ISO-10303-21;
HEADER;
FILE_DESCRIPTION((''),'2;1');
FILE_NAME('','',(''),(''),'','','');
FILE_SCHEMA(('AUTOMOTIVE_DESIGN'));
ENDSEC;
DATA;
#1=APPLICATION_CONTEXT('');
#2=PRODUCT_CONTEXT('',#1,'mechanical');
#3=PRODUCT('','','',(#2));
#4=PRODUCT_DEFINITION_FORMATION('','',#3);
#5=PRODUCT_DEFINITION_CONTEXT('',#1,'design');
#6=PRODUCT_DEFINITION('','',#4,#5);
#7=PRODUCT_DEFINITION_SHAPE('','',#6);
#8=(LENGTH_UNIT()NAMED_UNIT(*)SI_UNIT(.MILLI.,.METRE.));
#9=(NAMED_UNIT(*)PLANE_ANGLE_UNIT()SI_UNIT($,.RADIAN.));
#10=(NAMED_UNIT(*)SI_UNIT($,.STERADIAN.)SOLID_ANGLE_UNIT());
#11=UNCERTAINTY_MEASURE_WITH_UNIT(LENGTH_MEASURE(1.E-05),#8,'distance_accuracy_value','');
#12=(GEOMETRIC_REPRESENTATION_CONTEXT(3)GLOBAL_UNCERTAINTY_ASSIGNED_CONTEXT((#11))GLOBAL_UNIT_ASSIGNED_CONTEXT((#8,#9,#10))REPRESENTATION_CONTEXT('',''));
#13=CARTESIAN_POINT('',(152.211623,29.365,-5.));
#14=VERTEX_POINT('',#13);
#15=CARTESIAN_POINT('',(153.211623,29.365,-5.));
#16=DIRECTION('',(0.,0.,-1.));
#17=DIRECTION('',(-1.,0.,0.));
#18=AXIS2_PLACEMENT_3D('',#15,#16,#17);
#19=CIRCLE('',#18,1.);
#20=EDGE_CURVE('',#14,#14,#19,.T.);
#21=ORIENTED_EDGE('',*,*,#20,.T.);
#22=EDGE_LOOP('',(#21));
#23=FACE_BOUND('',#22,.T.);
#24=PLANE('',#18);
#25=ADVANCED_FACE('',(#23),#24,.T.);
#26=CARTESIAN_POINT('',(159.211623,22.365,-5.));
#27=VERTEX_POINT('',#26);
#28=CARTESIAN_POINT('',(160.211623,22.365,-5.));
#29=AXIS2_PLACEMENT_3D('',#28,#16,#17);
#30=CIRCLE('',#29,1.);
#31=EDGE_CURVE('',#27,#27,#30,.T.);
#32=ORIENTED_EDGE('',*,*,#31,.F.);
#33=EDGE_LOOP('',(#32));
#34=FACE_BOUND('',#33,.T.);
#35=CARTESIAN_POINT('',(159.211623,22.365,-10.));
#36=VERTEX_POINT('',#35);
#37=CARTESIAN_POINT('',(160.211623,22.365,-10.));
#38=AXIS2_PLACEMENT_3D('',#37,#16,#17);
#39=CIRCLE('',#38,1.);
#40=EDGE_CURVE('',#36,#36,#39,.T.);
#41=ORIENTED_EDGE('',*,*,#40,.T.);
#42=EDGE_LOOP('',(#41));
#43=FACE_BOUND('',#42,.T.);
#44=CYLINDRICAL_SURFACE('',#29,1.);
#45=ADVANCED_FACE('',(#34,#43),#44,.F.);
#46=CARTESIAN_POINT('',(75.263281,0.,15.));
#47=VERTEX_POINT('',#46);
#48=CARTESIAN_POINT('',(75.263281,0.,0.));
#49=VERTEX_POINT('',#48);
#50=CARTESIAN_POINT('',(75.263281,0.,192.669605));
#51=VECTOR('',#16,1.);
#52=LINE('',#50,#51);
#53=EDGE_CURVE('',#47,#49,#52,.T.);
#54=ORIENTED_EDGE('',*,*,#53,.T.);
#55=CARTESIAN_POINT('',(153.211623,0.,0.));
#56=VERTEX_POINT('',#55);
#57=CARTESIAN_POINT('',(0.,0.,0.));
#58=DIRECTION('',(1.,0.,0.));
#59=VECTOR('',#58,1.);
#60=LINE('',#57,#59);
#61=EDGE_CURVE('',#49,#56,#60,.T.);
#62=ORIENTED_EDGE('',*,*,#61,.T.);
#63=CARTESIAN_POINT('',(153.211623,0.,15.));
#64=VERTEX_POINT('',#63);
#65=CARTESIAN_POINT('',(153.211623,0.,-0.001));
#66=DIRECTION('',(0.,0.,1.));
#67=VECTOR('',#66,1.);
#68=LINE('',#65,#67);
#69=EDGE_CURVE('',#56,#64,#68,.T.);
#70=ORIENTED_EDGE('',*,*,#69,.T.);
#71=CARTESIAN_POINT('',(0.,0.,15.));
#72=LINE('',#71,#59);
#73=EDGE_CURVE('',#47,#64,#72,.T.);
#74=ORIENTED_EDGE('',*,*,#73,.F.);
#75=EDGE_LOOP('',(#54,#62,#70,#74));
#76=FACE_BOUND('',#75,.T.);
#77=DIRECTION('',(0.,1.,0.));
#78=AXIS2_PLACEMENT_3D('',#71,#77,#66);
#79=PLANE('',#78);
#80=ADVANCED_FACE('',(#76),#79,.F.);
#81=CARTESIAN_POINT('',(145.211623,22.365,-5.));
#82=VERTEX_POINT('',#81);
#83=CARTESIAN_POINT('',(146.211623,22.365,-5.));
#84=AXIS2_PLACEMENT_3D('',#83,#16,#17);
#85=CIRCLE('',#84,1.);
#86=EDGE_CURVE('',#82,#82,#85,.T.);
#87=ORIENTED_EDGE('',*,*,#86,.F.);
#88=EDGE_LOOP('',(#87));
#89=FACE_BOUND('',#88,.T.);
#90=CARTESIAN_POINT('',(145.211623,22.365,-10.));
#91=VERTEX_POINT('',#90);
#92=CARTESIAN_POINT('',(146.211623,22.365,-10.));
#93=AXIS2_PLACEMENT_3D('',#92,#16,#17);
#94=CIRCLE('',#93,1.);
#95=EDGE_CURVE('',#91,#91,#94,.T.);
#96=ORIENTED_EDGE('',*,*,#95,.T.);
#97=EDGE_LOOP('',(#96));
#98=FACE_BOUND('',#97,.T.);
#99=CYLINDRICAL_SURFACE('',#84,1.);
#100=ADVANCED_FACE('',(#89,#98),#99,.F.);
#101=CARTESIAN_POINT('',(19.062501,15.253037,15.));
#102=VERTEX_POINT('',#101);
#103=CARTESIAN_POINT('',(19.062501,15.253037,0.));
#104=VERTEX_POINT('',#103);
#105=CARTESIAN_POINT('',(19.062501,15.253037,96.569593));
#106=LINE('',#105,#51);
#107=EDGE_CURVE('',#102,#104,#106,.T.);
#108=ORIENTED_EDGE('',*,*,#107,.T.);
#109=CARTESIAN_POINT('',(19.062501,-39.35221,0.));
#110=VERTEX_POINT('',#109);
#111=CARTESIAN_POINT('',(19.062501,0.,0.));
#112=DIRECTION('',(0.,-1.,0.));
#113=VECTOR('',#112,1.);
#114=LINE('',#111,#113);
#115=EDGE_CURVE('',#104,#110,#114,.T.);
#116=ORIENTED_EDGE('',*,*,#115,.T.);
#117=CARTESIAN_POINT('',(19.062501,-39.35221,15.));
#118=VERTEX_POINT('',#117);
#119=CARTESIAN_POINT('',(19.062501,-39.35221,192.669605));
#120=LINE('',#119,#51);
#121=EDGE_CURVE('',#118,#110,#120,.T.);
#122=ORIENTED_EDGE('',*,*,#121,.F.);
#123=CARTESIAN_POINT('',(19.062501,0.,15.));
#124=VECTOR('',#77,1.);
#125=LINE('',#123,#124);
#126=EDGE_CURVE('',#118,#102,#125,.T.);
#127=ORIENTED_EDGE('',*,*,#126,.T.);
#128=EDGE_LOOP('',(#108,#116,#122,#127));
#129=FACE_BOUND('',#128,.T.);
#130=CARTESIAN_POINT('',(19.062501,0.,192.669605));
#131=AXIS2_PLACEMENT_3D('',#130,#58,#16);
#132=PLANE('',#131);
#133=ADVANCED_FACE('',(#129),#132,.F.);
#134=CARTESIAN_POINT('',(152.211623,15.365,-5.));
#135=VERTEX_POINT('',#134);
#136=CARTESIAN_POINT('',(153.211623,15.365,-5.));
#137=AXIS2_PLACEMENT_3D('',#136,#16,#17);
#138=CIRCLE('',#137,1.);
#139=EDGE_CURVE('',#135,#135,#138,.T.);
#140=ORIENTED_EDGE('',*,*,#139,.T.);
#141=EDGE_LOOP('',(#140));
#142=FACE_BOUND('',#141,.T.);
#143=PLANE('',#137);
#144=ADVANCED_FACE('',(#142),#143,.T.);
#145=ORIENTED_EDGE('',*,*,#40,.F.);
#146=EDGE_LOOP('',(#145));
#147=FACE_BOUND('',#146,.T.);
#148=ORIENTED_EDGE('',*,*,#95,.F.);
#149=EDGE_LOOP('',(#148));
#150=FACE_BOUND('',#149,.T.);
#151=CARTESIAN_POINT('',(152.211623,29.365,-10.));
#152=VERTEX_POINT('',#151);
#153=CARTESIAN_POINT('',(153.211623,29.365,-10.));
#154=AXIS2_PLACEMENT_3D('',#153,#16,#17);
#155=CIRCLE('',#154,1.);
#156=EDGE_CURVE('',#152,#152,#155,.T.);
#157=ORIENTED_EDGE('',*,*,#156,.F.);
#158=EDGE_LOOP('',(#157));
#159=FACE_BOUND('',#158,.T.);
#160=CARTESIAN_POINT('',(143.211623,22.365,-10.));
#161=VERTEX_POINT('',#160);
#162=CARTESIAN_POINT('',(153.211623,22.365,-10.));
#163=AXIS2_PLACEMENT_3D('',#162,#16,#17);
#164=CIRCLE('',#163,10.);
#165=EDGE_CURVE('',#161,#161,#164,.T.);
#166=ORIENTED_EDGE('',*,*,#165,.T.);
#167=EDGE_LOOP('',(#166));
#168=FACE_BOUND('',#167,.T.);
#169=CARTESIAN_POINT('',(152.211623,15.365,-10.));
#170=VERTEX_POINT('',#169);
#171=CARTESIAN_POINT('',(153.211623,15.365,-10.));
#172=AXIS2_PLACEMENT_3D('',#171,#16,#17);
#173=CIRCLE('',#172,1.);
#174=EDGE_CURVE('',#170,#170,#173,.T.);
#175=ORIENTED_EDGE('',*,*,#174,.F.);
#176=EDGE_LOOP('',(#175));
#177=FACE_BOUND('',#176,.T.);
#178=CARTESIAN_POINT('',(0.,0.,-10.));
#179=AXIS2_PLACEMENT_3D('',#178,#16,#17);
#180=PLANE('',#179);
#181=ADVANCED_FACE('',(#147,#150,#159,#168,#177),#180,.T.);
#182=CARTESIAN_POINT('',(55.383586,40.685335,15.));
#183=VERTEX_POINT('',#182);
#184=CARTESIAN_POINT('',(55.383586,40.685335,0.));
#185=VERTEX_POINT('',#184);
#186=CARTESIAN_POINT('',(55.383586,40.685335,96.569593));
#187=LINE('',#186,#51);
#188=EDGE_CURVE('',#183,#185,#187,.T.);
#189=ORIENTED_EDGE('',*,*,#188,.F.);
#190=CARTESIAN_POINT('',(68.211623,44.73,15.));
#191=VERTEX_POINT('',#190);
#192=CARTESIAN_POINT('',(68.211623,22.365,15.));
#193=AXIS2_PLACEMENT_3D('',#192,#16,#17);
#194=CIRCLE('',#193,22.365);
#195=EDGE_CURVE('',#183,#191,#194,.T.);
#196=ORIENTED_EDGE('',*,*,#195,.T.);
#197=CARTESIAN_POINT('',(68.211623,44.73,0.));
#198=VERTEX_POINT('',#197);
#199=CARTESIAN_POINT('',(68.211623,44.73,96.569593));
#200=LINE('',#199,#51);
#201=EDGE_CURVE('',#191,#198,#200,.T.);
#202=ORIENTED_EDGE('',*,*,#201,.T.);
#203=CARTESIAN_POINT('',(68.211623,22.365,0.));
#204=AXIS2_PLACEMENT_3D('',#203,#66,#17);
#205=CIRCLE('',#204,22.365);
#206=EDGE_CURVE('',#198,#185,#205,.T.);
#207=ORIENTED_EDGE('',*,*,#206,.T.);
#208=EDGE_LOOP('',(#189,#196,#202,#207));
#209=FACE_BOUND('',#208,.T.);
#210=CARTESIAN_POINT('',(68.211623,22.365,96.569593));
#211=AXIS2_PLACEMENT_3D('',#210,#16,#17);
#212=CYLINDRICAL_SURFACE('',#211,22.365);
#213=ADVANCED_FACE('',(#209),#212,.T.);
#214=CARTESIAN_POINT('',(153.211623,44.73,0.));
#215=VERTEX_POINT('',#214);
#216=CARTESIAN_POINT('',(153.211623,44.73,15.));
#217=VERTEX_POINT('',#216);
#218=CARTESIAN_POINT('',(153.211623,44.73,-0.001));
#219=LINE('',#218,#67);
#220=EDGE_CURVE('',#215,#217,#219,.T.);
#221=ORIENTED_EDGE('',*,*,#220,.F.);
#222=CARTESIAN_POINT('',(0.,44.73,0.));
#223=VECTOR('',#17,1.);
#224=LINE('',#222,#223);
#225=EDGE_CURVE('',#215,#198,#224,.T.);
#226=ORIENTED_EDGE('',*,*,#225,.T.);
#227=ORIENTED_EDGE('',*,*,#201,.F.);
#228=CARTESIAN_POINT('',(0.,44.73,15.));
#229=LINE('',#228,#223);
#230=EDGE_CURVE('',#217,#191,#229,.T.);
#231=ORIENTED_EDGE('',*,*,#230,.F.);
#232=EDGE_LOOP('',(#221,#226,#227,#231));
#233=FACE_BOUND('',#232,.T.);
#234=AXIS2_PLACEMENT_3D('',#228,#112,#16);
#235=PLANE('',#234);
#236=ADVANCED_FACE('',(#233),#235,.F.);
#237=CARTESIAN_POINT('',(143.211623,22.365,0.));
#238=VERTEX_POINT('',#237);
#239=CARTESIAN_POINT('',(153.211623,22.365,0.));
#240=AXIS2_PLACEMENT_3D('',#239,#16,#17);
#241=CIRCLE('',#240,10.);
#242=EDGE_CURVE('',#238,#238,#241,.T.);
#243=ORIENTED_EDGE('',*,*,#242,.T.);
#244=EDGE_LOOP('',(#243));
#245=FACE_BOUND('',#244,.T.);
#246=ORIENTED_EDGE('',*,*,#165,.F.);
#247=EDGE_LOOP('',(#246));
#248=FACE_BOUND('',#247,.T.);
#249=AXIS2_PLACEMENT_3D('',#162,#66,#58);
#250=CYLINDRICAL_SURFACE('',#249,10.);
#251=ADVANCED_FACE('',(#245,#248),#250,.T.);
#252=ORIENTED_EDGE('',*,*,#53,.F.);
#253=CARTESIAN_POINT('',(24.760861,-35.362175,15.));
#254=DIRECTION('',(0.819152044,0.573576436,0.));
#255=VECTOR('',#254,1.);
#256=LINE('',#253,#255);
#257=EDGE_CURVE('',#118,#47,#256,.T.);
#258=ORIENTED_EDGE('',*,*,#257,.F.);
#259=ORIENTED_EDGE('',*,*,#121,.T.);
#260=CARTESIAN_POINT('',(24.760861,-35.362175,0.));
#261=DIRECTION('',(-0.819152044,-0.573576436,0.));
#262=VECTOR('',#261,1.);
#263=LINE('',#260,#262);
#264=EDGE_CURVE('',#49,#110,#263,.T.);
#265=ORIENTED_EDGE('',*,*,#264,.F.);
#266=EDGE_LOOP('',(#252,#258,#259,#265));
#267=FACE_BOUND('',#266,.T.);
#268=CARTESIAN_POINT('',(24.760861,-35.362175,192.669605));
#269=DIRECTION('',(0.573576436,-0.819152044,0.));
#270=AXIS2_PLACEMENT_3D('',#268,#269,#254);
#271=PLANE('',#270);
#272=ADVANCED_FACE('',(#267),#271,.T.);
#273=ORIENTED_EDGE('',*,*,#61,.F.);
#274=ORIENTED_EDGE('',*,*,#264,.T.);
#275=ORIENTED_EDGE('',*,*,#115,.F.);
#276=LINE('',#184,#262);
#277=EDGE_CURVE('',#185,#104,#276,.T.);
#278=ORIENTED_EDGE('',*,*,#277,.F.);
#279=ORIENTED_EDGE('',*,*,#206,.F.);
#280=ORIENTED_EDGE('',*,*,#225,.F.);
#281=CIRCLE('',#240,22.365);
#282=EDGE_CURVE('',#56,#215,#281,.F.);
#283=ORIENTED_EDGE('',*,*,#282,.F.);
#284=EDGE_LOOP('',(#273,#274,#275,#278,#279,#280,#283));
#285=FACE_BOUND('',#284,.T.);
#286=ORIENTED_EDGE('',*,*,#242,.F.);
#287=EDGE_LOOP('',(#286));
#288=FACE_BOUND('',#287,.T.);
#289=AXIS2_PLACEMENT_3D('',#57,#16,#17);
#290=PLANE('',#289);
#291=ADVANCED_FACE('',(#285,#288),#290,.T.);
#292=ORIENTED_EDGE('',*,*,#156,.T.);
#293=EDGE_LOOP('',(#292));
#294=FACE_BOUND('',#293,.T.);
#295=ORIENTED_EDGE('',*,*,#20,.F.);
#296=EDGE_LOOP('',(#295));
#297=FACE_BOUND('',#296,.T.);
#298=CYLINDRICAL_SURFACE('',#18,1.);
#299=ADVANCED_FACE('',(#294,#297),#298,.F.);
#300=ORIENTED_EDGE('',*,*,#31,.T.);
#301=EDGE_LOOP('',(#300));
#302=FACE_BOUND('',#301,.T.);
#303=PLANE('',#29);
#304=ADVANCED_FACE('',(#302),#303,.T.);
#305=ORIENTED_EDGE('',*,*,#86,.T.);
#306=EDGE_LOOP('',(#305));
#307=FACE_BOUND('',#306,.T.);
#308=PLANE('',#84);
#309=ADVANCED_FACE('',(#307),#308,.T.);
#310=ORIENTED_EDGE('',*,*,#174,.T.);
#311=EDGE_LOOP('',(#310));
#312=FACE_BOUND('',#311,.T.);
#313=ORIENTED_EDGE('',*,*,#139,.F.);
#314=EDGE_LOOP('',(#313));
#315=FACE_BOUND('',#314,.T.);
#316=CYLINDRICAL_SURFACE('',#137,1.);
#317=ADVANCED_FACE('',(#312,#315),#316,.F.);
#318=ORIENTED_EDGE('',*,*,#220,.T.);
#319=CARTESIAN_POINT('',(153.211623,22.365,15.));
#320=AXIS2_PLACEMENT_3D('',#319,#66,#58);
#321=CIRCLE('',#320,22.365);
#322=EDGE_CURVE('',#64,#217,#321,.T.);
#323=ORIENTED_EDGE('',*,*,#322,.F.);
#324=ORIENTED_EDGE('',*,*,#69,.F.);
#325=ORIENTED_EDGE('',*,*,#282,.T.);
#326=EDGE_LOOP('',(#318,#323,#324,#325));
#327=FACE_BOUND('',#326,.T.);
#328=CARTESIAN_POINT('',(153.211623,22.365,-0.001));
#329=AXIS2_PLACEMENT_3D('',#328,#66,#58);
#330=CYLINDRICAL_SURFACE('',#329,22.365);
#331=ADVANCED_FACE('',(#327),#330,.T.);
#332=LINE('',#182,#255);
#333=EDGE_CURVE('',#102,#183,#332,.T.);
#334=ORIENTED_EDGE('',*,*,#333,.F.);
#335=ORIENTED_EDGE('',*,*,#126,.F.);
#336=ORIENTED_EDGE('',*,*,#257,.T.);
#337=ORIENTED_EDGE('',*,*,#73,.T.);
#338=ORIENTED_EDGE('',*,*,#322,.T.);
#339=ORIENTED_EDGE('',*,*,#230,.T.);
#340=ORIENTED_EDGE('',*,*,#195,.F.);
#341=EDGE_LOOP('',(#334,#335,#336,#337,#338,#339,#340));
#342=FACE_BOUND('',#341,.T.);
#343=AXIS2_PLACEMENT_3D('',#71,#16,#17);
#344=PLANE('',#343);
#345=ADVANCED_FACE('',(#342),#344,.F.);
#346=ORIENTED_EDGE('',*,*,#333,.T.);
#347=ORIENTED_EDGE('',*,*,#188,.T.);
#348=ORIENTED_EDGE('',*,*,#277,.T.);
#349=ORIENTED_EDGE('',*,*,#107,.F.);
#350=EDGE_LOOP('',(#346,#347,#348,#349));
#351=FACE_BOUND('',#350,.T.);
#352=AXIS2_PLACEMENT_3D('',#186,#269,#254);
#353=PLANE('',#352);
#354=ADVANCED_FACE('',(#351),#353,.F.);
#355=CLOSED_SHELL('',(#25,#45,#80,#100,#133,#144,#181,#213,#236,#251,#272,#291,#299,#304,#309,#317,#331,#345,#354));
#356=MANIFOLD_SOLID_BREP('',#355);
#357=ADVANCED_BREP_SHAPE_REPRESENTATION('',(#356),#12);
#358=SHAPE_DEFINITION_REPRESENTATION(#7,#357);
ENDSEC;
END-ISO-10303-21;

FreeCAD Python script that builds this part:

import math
import FreeCAD as App
import Part
import Sketcher
Q = App.Units.Quantity


def add_polygon(sketch, points):
    """Adds a closed chain of lines whose ends are joined by coincident constraints."""
    first, n = sketch.GeometryCount, len(points)
    for a, b in zip(points, points[1:] + points[:1]):
        sketch.addGeometry(Part.LineSegment(App.Vector(*a, 0), App.Vector(*b, 0)), False)
    for i in range(n):
        sketch.addConstraint(Sketcher.Constraint("Coincident", first + i, 2, first + (i + 1) % n, 1))

doc = App.newDocument("Part")
body = doc.addObject("PartDesign::Body", "Body")

sketch1 = body.newObject("Sketcher::SketchObject", "Sketch")
sketch1.AttachmentSupport = (doc.getObject("XY_Plane"), [""])
sketch1.MapMode = "FlatFace"
add_polygon(sketch1, [(0, 45), (0, 0), (300, 0), (300, 45)])
sketch1.addConstraint([
    Sketcher.Constraint("Vertical", 0),
    Sketcher.Constraint("Horizontal", 1),
    Sketcher.Constraint("Vertical", 2),
    Sketcher.Constraint("Horizontal", 3),
    Sketcher.Constraint("Coincident", 0, 2, -1, 1),
    Sketcher.Constraint("DistanceX", 1, 1, 1, 2, Q("300 mm")),
    Sketcher.Constraint("DistanceY", 0, 2, 0, 1, Q("44.73 mm")),
])
pad1 = body.newObject("PartDesign::Pad", "Pad")
pad1.Profile = sketch1
pad1.Length = 15

sketch2 = body.newObject("Sketcher::SketchObject", "Sketch001")
sketch2.AttachmentSupport = (doc.getObject("XY_Plane"), [""])
sketch2.MapMode = "FlatFace"
sketch2.AttachmentOffset = App.Placement(App.Vector(0, 0, 15), App.Rotation())
sketch2.addGeometry([
    Part.LineSegment(App.Vector(300, 45, 0), App.Vector(153, 45, 0)),
    Part.ArcOfCircle(Part.Circle(App.Vector(153, 22, 0), App.Vector(0, 0, 1), 22), math.radians(-90), math.radians(90)),
    Part.LineSegment(App.Vector(153, 0, 0), App.Vector(300, 0, 0)),
    Part.LineSegment(App.Vector(300, 0, 0), App.Vector(300, 45, 0)),
], False)
sketch2.addConstraint([
    Sketcher.Constraint("Tangent", 0, 2, 1, 2),
    Sketcher.Constraint("Tangent", 1, 1, 2, 1),
    Sketcher.Constraint("Coincident", 2, 2, 3, 1),
    Sketcher.Constraint("Coincident", 3, 2, 0, 1),
    Sketcher.Constraint("Horizontal", 0),
    Sketcher.Constraint("Horizontal", 2),
    Sketcher.Constraint("Vertical", 3),
    Sketcher.Constraint("PointOnObject", 1, 1, -1),
    Sketcher.Constraint("DistanceX", -1, 1, 2, 2, Q("300 mm")),
    Sketcher.Constraint("Radius", 1, Q("22.365 mm")),
    Sketcher.Constraint("DistanceX", 0, 2, 0, 1, Q("146.788377 mm")),
])
pocket1 = body.newObject("PartDesign::Pocket", "Pocket")
pocket1.Profile = sketch2
pocket1.Type = "UpToFirst"

sketch3 = body.newObject("Sketcher::SketchObject", "Sketch002")
sketch3.AttachmentSupport = (doc.getObject("XY_Plane"), [""])
sketch3.MapMode = "FlatFace"
sketch3.addGeometry(Part.Circle(App.Vector(153, 22, 0), App.Vector(0, 0, 1), 10), False)
sketch3.addConstraint([
    Sketcher.Constraint("Diameter", 0, Q("20 mm")),
    Sketcher.Constraint("DistanceY", -1, 1, 0, 3, Q("22.365 mm")),
    Sketcher.Constraint("DistanceX", -1, 1, 0, 3, Q("153.211623 mm")),
])
pad2 = body.newObject("PartDesign::Pad", "Pad001")
pad2.Profile = sketch3
pad2.Length = 10
pad2.Reversed = True

sketch4 = body.newObject("Sketcher::SketchObject", "Sketch003")
sketch4.AttachmentSupport = (doc.getObject("XY_Plane"), [""])
sketch4.MapMode = "FlatFace"
sketch4.AttachmentOffset = App.Placement(App.Vector(0, 0, -10), App.Rotation())
sketch4.addGeometry([
    Part.Circle(App.Vector(153.2, 29.4, 0), App.Vector(0, 0, 1), 1),
    Part.Circle(App.Vector(146.2, 22.4, 0), App.Vector(0, 0, 1), 1),
    Part.Circle(App.Vector(153.2, 15.4, 0), App.Vector(0, 0, 1), 1),
    Part.Circle(App.Vector(160.2, 22.4, 0), App.Vector(0, 0, 1), 1),
], False)
sketch4.addConstraint([
    Sketcher.Constraint("Equal", 0, 1),
    Sketcher.Constraint("Equal", 1, 2),
    Sketcher.Constraint("Equal", 2, 3),
    Sketcher.Constraint("Horizontal", 1, 3, 3, 3),
    Sketcher.Constraint("Vertical", 0, 3, 2, 3),
    Sketcher.Constraint("Diameter", 0, Q("2 mm")),
    Sketcher.Constraint("DistanceX", 1, 3, 0, 3, Q("7 mm")),
    Sketcher.Constraint("DistanceY", 1, 3, 0, 3, Q("7 mm")),
    Sketcher.Constraint("DistanceY", 2, 3, 1, 3, Q("7 mm")),
    Sketcher.Constraint("DistanceX", 2, 3, 3, 3, Q("7 mm")),
    Sketcher.Constraint("DistanceY", -1, 1, 0, 3, Q("29.365 mm")),
    Sketcher.Constraint("DistanceX", -1, 1, 0, 3, Q("153.211623 mm")),
])
pocket2 = body.newObject("PartDesign::Pocket", "Pocket001")
pocket2.Profile = sketch4
pocket2.Length = 5
pocket2.Reversed = True

sketch5 = body.newObject("Sketcher::SketchObject", "Sketch004")
sketch5.AttachmentSupport = (doc.getObject("XY_Plane"), [""])
sketch5.MapMode = "FlatFace"
sketch5.AttachmentOffset = App.Placement(App.Vector(0, 0, 15), App.Rotation())
sketch5.addGeometry([
    Part.LineSegment(App.Vector(55, 41, 0), App.Vector(19, 15, 0)),
    Part.LineSegment(App.Vector(19, 15, 0), App.Vector(19, -39, 0)),
    Part.LineSegment(App.Vector(19, -39, 0), App.Vector(75, 0, 0)),
    Part.LineSegment(App.Vector(75, 0, 0), App.Vector(153, 0, 0)),
    Part.ArcOfCircle(Part.Circle(App.Vector(153, 22, 0), App.Vector(0, 0, 1), 22), math.radians(-90), math.radians(0)),
    Part.ArcOfCircle(Part.Circle(App.Vector(153, 22, 0), App.Vector(0, 0, 1), 22), math.radians(0), math.radians(90)),
    Part.LineSegment(App.Vector(153, 45, 0), App.Vector(68, 45, 0)),
    Part.ArcOfCircle(Part.Circle(App.Vector(68, 22, 0), App.Vector(0, 0, 1), 22), math.radians(90), math.radians(125)),
    Part.Circle(App.Vector(153, 22, 0), App.Vector(0, 0, 1), 10),
], False)
sketch5.addConstraint([
    Sketcher.Constraint("Coincident", 0, 2, 1, 1),
    Sketcher.Constraint("Coincident", 1, 2, 2, 1),
    Sketcher.Constraint("Coincident", 2, 2, 3, 1),
    Sketcher.Constraint("Tangent", 3, 2, 4, 1),
    Sketcher.Constraint("Tangent", 4, 2, 5, 1),
    Sketcher.Constraint("Tangent", 5, 2, 6, 1),
    Sketcher.Constraint("Tangent", 6, 2, 7, 1),
    Sketcher.Constraint("Tangent", 7, 2, 0, 1),
    Sketcher.Constraint("Vertical", 1),
    Sketcher.Constraint("Horizontal", 3),
    Sketcher.Constraint("Horizontal", 6),
    Sketcher.Constraint("Coincident", 8, 3, 4, 3),
    Sketcher.Constraint("Equal", 4, 5),
    Sketcher.Constraint("Equal", 5, 7),
    Sketcher.Constraint("PointOnObject", 2, 2, -1),
    Sketcher.Constraint("Parallel", 0, 2),
    Sketcher.Constraint("Horizontal", 8, 3, 4, 2),
    Sketcher.Constraint("Diameter", 8, Q("20 mm")),
    Sketcher.Constraint("DistanceX", 6, 2, 6, 1, Q("85 mm")),
    Sketcher.Constraint("Angle", 0, Q("-145 deg")),
    Sketcher.Constraint("Radius", 4, Q("22.365 mm")),
    Sketcher.Constraint("DistanceX", -1, 1, 0, 2, Q("19.062501 mm")),
    Sketcher.Constraint("Distance", 0, Q("44.339858 mm")),
    Sketcher.Constraint("DistanceX", 3, 1, 3, 2, Q("77.948343 mm")),
])
pad3 = body.newObject("PartDesign::Pad", "Pad002")
pad3.Profile = sketch5
pad3.Length = 15
pad3.Reversed = True

sketch6 = body.newObject("Sketcher::SketchObject", "Sketch005")
sketch6.AttachmentSupport = (doc.getObject("XY_Plane"), [""])
sketch6.MapMode = "FlatFace"
sketch6.addGeometry([
    Part.LineSegment(App.Vector(19, 15, 0), App.Vector(19, 0, 0)),
    Part.LineSegment(App.Vector(19, 0, 0), App.Vector(0, 0, 0)),
    Part.LineSegment(App.Vector(0, 0, 0), App.Vector(0, 45, 0)),
    Part.LineSegment(App.Vector(0, 45, 0), App.Vector(68, 45, 0)),
    Part.ArcOfCircle(Part.Circle(App.Vector(68, 22, 0), App.Vector(0, 0, 1), 22), math.radians(90), math.radians(125)),
    Part.LineSegment(App.Vector(55, 41, 0), App.Vector(19, 15, 0)),
], False)
sketch6.addConstraint([
    Sketcher.Constraint("Coincident", 0, 2, 1, 1),
    Sketcher.Constraint("Coincident", 1, 2, 2, 1),
    Sketcher.Constraint("Coincident", 2, 2, 3, 1),
    Sketcher.Constraint("Tangent", 3, 2, 4, 1),
    Sketcher.Constraint("Tangent", 4, 2, 5, 1),
    Sketcher.Constraint("Coincident", 5, 2, 0, 1),
    Sketcher.Constraint("Vertical", 0),
    Sketcher.Constraint("Horizontal", 1),
    Sketcher.Constraint("Vertical", 2),
    Sketcher.Constraint("Horizontal", 3),
    Sketcher.Constraint("Coincident", 1, 2, -1, 1),
    Sketcher.Constraint("Angle", 5, Q("-145 deg")),
    Sketcher.Constraint("Radius", 4, Q("22.365 mm")),
    Sketcher.Constraint("DistanceY", 2, 1, 2, 2, Q("44.73 mm")),
    Sketcher.Constraint("DistanceX", 1, 2, 1, 1, Q("19.062501 mm")),
    Sketcher.Constraint("Distance", 5, Q("44.339858 mm")),
])
pocket3 = body.newObject("PartDesign::Pocket", "Pocket002")
pocket3.Profile = sketch6
pocket3.Length = 15
pocket3.Reversed = True

doc.recompute()
